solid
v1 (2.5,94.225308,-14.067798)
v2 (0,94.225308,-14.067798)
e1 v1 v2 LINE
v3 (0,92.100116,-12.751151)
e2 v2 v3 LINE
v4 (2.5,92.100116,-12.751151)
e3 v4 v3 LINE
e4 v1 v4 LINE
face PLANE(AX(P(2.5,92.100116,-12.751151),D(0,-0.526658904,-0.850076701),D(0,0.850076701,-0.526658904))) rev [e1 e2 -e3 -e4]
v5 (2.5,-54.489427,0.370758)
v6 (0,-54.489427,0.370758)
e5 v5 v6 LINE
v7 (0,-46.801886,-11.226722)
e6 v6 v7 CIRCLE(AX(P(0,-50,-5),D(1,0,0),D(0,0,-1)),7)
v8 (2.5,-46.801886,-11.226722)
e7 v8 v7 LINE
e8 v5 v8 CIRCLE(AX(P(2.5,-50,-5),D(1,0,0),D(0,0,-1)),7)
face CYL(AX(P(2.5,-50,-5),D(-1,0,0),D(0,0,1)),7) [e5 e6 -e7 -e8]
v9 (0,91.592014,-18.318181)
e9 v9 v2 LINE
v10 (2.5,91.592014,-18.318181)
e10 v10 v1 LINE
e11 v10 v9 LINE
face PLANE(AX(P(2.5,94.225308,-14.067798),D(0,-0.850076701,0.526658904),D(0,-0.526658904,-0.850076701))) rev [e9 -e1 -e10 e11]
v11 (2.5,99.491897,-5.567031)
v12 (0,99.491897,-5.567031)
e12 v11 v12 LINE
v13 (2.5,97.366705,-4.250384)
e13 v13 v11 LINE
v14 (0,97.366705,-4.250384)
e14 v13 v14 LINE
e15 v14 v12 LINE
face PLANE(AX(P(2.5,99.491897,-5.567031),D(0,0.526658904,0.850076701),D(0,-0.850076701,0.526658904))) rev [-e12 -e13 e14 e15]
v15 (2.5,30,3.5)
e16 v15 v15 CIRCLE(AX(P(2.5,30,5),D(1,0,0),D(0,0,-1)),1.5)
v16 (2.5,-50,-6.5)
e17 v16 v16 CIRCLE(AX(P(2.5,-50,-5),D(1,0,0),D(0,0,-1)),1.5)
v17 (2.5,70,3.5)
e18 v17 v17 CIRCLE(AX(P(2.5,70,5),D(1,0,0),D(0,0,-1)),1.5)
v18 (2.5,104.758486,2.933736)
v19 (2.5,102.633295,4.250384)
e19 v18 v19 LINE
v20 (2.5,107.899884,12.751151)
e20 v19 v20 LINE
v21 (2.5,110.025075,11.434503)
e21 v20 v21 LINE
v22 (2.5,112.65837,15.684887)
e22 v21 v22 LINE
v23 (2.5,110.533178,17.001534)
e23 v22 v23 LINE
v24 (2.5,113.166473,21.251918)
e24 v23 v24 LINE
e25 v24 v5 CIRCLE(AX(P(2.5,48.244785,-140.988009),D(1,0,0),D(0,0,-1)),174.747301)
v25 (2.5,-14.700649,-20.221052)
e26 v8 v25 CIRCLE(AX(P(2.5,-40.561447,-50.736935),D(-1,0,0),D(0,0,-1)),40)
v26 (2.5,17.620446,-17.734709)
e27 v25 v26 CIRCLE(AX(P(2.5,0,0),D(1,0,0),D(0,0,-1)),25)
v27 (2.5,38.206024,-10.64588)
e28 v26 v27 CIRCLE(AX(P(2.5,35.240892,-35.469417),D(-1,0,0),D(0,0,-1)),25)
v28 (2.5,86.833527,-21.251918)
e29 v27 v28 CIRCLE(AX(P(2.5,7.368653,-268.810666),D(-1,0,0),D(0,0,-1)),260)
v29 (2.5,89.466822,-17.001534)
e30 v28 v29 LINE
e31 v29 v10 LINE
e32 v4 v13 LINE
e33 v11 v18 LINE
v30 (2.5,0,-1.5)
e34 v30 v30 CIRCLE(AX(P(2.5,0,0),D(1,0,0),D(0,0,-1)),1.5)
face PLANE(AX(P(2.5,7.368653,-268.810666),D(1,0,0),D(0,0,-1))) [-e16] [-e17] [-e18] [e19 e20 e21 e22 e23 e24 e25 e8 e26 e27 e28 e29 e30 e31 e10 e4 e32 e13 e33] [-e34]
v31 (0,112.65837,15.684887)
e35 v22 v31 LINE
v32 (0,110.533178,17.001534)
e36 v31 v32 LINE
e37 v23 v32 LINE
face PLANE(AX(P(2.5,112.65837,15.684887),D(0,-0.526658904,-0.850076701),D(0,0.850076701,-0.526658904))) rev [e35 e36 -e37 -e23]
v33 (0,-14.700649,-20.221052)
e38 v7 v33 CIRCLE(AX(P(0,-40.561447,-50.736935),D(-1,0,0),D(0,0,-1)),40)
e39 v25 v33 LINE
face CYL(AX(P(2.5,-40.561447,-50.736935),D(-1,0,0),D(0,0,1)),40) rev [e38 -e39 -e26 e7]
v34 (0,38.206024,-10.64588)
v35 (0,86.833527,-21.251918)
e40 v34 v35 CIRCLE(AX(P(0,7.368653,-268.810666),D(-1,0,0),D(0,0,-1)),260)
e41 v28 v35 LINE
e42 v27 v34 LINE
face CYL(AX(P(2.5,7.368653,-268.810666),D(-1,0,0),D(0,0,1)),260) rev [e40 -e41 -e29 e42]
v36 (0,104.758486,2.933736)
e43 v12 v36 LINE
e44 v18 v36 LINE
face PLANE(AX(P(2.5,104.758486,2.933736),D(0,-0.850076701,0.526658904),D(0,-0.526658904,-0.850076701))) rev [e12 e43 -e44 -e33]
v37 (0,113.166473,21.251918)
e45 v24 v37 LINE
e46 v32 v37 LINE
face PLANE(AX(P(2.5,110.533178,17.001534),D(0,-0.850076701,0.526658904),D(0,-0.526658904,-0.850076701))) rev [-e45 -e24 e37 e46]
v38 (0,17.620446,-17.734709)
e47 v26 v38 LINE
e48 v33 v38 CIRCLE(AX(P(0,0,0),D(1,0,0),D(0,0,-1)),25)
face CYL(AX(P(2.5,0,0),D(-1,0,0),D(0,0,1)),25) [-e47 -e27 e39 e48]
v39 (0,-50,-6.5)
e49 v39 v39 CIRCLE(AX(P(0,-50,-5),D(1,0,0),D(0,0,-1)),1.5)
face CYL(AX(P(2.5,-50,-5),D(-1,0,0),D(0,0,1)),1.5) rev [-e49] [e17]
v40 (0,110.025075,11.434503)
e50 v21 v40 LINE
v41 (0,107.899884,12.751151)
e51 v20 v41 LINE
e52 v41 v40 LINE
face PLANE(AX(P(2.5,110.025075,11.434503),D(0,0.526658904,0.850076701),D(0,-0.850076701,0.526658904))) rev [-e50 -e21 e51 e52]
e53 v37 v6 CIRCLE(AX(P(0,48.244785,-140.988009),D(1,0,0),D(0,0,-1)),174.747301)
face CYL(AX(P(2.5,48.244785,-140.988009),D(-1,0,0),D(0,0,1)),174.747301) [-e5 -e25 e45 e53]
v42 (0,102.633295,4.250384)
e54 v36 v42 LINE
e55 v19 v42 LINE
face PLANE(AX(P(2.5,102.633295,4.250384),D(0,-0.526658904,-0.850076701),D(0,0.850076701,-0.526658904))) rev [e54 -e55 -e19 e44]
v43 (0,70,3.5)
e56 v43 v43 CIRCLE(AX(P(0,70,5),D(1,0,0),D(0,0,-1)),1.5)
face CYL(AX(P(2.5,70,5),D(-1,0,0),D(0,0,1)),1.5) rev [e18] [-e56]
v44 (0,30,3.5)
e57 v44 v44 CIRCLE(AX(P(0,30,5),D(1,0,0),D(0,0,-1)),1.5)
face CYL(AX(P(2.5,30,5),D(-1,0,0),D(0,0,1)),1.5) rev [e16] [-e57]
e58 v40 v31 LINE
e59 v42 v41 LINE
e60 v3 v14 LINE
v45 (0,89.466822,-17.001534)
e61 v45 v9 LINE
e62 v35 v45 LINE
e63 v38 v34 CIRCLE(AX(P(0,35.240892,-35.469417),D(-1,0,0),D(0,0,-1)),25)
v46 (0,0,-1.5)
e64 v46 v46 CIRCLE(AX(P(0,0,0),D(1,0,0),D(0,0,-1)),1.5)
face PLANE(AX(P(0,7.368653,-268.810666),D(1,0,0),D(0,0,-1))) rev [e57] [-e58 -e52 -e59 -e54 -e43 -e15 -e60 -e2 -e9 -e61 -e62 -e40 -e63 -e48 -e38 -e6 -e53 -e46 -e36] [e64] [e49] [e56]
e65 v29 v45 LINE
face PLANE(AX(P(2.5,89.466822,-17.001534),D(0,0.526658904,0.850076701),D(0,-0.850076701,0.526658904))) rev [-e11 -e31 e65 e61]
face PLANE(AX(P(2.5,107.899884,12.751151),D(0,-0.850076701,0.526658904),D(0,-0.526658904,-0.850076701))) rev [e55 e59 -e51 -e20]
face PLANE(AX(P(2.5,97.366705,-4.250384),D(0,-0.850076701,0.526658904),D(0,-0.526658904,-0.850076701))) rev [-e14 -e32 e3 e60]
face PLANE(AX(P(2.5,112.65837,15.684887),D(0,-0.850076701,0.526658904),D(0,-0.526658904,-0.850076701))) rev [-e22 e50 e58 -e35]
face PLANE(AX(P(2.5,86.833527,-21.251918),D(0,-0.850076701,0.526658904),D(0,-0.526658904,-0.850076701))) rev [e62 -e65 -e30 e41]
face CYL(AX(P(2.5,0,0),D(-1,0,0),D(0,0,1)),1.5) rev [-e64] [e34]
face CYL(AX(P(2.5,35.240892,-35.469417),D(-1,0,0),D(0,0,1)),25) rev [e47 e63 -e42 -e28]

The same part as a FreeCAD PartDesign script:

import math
import FreeCAD as App
import Part
import Sketcher

V = App.Vector

doc = App.newDocument("Part")
params = doc.addObject("Spreadsheet::Sheet", "Params")
for row, (alias, value) in enumerate([
    ("sketch1_diameter", "3 mm"),
    ("sketch1_diameter2", "3 mm"),
    ("sketch1_diameter3", "3 mm"),
    ("sketch1_diameter4", "3 mm"),
    ("sketch1_radius", "7 mm"),
    ("pad1_length", "2.5 mm"),
], start=1):
    params.set(f"A{row}", alias)
    params.set(f"B{row}", "=" + value)
    params.setAlias(f"B{row}", alias)

body = doc.addObject("PartDesign::Body", "Body")

# Sketch on YZ plane
sketch1 = doc.addObject("Sketcher::SketchObject", "Sketch")
body.addObject(sketch1)
sketch1.AttachmentSupport = (doc.YZ_Plane, [""])
sketch1.MapMode = "FlatFace"
sketch1.addGeometry([
    Part.LineSegment(V(86.833527, -21.251918, 0), V(89.466822, -17.001534, 0)),  # 0
    Part.LineSegment(V(89.466822, -17.001534, 0), V(91.592014, -18.318181, 0)),  # 1
    Part.LineSegment(V(91.592014, -18.318181, 0), V(94.225308, -14.067798, 0)),  # 2
    Part.LineSegment(V(94.225308, -14.067798, 0), V(92.100116, -12.751151, 0)),  # 3
    Part.LineSegment(V(92.100116, -12.751151, 0), V(97.366705, -4.250384, 0)),  # 4
    Part.LineSegment(V(97.366705, -4.250384, 0), V(99.491897, -5.567031, 0)),  # 5
    Part.LineSegment(V(99.491897, -5.567031, 0), V(104.758486, 2.933736, 0)),  # 6
    Part.LineSegment(V(104.758486, 2.933736, 0), V(102.633295, 4.250384, 0)),  # 7
    Part.LineSegment(V(102.633295, 4.250384, 0), V(107.899884, 12.751151, 0)),  # 8
    Part.LineSegment(V(107.899884, 12.751151, 0), V(110.025075, 11.434503, 0)),  # 9
    Part.LineSegment(V(110.025075, 11.434503, 0), V(112.65837, 15.684887, 0)),  # 10
    Part.LineSegment(V(112.65837, 15.684887, 0), V(110.533178, 17.001534, 0)),  # 11
    Part.LineSegment(V(110.533178, 17.001534, 0), V(113.166473, 21.251918, 0)),  # 12
    Part.ArcOfCircle(Part.Circle(V(48.244785, -140.988009, 0), V(0, 0, 1), 174.747301), math.radians(68.190761), math.radians(126.008238)),  # 13
    Part.ArcOfCircle(Part.Circle(V(-50, -5, 0), V(0, 0, 1), 7), math.radians(129.892314), math.radians(297.185535)),  # 14
    Part.ArcOfCircle(Part.Circle(V(-40.561447, -50.736935, 0), V(0, 0, 1), 40), math.radians(49.720268), math.radians(98.975436)),  # 15
    Part.ArcOfCircle(Part.Circle(V(0, 0, 0), V(0, 0, 1), 25), math.radians(-126.017048), math.radians(-45.185171)),  # 16
    Part.ArcOfCircle(Part.Circle(V(35.240892, -35.469417, 0), V(0, 0, 1), 25), math.radians(83.188384), math.radians(134.814829)),  # 17
    Part.ArcOfCircle(Part.Circle(V(7.368653, -268.810666, 0), V(0, 0, 1), 260), math.radians(72.203681), math.radians(83.188384)),  # 18
    Part.Circle(V(-50, -5, 0), V(0, 0, 1), 1.5),  # 19
    Part.Circle(V(0, 0, 0), V(0, 0, 1), 1.5),  # 20
    Part.Circle(V(30, 5, 0), V(0, 0, 1), 1.5),  # 21
    Part.Circle(V(70, 5, 0), V(0, 0, 1), 1.5),  # 22
], False)
sketch1.addConstraint([
    Sketcher.Constraint("Coincident", 0, 2, 1, 1),
    Sketcher.Constraint("Coincident", 1, 2, 2, 1),
    Sketcher.Constraint("Coincident", 2, 2, 3, 1),
    Sketcher.Constraint("Coincident", 3, 2, 4, 1),
    Sketcher.Constraint("Coincident", 4, 2, 5, 1),
    Sketcher.Constraint("Coincident", 5, 2, 6, 1),
    Sketcher.Constraint("Coincident", 6, 2, 7, 1),
    Sketcher.Constraint("Coincident", 7, 2, 8, 1),
    Sketcher.Constraint("Coincident", 8, 2, 9, 1),
    Sketcher.Constraint("Coincident", 9, 2, 10, 1),
    Sketcher.Constraint("Coincident", 10, 2, 11, 1),
    Sketcher.Constraint("Coincident", 11, 2, 12, 1),
    Sketcher.Constraint("Coincident", 12, 2, 13, 1),
    Sketcher.Constraint("Coincident", 13, 2, 14, 1),
    Sketcher.Constraint("Coincident", 14, 2, 15, 2),
    Sketcher.Constraint("Coincident", 15, 1, 16, 1),
    Sketcher.Constraint("Coincident", 16, 2, 17, 2),
    Sketcher.Constraint("Coincident", 17, 1, 18, 2),
    Sketcher.Constraint("Coincident", 18, 1, 0, 1),
    Sketcher.Constraint("Coincident", 16, 3, -1, 1),
    Sketcher.Constraint("Coincident", 20, 3, -1, 1),
    Sketcher.Constraint("Coincident", 19, 3, 14, 3),
    Sketcher.Constraint("Diameter", 19, 3.0),
    Sketcher.Constraint("Diameter", 20, 3.0),
    Sketcher.Constraint("Diameter", 21, 3.0),
    Sketcher.Constraint("Diameter", 22, 3.0),
    Sketcher.Constraint("Radius", 14, 7.0),
    Sketcher.Constraint("Radius", 15, 40.0),
    Sketcher.Constraint("Radius", 16, 25.0),
    Sketcher.Constraint("Radius", 17, 25.0),
    Sketcher.Constraint("Radius", 18, 260.0),
    Sketcher.Constraint("Distance", 0, 5.0),
    Sketcher.Constraint("Distance", 2, 5.0),
    Sketcher.Constraint("Distance", 4, 10.0),
    Sketcher.Constraint("Distance", 6, 10.0),
    Sketcher.Constraint("Distance", 8, 10.0),
    Sketcher.Constraint("Distance", 10, 5.0),
    Sketcher.Constraint("Distance", 12, 5.0),
    Sketcher.Constraint("DistanceX", 14, 3, -1, 1, 50.0),
    Sketcher.Constraint("DistanceY", 14, 3, -1, 1, 5.0),
    Sketcher.Constraint("DistanceX", -1, 1, 21, 3, 30.0),
    Sketcher.Constraint("DistanceY", -1, 1, 21, 3, 5.0),
    Sketcher.Constraint("DistanceX", -1, 1, 22, 3, 70.0),
    Sketcher.Constraint("DistanceY", -1, 1, 22, 3, 5.0),
    Sketcher.Constraint("Distance", 1, 2.5),
    Sketcher.Constraint("Distance", 3, 2.5),
    Sketcher.Constraint("Distance", 5, 2.5),
    Sketcher.Constraint("Distance", 7, 2.5),
    Sketcher.Constraint("Distance", 9, 2.5),
    Sketcher.Constraint("Distance", 11, 2.5),
    Sketcher.Constraint("Radius", 13, 174.747301),
    Sketcher.Constraint("DistanceX", 15, 3, 18, 3, 47.9301),
    Sketcher.Constraint("DistanceY", 3, 2, 8, 2, 25.502301),
    Sketcher.Constraint("DistanceY", 13, 3, -1, 1, 140.988009),
    Sketcher.Constraint("DistanceX", -1, 1, 17, 3, 35.240892),
    Sketcher.Constraint("DistanceX", -1, 1, 0, 2, 89.466822),
    Sketcher.Constraint("DistanceY", 1, 2, -1, 1, 18.318181),
    Sketcher.Constraint("DistanceX", -1, 1, 2, 2, 94.225308),
    Sketcher.Constraint("DistanceY", 3, 2, -1, 1, 12.751151),
    Sketcher.Constraint("DistanceY", 5, 2, -1, 1, 5.567031),
    Sketcher.Constraint("DistanceX", -1, 1, 10, 2, 112.65837),
    Sketcher.Constraint("DistanceX", -1, 1, 11, 2, 110.533178),
    Sketcher.Constraint("DistanceY", -1, 1, 13, 2, 0.370758),
    Sketcher.Constraint("DistanceX", 15, 1, -1, 1, 14.700649),
    Sketcher.Constraint("DistanceY", 16, 2, -1, 1, 17.734709),
    Sketcher.Constraint("DistanceY", 17, 1, -1, 1, 10.64588),
    Sketcher.Constraint("DistanceX", 15, 3, 13, 3, 88.806231),
    Sketcher.Constraint("DistanceX", 0, 2, 1, 2, 2.125192),
    Sketcher.Constraint("DistanceX", 3, 2, 4, 2, 5.266589),
    Sketcher.Constraint("DistanceX", 5, 2, 6, 2, 5.266589),
    Sketcher.Constraint("DistanceX", 7, 2, 6, 2, 2.125192),
    Sketcher.Constraint("DistanceX", 8, 2, 9, 2, 2.125192),
])
sketch1.setExpression("Constraints[22]", "Params.sketch1_diameter")
sketch1.setExpression("Constraints[23]", "Params.sketch1_diameter2")
sketch1.setExpression("Constraints[24]", "Params.sketch1_diameter3")
sketch1.setExpression("Constraints[25]", "Params.sketch1_diameter4")
sketch1.setExpression("Constraints[26]", "Params.sketch1_radius")
pad1 = doc.addObject("PartDesign::Pad", "Pad")
body.addObject(pad1)
pad1.Profile = sketch1
pad1.setExpression("Length", "Params.pad1_length")

doc.recompute()
